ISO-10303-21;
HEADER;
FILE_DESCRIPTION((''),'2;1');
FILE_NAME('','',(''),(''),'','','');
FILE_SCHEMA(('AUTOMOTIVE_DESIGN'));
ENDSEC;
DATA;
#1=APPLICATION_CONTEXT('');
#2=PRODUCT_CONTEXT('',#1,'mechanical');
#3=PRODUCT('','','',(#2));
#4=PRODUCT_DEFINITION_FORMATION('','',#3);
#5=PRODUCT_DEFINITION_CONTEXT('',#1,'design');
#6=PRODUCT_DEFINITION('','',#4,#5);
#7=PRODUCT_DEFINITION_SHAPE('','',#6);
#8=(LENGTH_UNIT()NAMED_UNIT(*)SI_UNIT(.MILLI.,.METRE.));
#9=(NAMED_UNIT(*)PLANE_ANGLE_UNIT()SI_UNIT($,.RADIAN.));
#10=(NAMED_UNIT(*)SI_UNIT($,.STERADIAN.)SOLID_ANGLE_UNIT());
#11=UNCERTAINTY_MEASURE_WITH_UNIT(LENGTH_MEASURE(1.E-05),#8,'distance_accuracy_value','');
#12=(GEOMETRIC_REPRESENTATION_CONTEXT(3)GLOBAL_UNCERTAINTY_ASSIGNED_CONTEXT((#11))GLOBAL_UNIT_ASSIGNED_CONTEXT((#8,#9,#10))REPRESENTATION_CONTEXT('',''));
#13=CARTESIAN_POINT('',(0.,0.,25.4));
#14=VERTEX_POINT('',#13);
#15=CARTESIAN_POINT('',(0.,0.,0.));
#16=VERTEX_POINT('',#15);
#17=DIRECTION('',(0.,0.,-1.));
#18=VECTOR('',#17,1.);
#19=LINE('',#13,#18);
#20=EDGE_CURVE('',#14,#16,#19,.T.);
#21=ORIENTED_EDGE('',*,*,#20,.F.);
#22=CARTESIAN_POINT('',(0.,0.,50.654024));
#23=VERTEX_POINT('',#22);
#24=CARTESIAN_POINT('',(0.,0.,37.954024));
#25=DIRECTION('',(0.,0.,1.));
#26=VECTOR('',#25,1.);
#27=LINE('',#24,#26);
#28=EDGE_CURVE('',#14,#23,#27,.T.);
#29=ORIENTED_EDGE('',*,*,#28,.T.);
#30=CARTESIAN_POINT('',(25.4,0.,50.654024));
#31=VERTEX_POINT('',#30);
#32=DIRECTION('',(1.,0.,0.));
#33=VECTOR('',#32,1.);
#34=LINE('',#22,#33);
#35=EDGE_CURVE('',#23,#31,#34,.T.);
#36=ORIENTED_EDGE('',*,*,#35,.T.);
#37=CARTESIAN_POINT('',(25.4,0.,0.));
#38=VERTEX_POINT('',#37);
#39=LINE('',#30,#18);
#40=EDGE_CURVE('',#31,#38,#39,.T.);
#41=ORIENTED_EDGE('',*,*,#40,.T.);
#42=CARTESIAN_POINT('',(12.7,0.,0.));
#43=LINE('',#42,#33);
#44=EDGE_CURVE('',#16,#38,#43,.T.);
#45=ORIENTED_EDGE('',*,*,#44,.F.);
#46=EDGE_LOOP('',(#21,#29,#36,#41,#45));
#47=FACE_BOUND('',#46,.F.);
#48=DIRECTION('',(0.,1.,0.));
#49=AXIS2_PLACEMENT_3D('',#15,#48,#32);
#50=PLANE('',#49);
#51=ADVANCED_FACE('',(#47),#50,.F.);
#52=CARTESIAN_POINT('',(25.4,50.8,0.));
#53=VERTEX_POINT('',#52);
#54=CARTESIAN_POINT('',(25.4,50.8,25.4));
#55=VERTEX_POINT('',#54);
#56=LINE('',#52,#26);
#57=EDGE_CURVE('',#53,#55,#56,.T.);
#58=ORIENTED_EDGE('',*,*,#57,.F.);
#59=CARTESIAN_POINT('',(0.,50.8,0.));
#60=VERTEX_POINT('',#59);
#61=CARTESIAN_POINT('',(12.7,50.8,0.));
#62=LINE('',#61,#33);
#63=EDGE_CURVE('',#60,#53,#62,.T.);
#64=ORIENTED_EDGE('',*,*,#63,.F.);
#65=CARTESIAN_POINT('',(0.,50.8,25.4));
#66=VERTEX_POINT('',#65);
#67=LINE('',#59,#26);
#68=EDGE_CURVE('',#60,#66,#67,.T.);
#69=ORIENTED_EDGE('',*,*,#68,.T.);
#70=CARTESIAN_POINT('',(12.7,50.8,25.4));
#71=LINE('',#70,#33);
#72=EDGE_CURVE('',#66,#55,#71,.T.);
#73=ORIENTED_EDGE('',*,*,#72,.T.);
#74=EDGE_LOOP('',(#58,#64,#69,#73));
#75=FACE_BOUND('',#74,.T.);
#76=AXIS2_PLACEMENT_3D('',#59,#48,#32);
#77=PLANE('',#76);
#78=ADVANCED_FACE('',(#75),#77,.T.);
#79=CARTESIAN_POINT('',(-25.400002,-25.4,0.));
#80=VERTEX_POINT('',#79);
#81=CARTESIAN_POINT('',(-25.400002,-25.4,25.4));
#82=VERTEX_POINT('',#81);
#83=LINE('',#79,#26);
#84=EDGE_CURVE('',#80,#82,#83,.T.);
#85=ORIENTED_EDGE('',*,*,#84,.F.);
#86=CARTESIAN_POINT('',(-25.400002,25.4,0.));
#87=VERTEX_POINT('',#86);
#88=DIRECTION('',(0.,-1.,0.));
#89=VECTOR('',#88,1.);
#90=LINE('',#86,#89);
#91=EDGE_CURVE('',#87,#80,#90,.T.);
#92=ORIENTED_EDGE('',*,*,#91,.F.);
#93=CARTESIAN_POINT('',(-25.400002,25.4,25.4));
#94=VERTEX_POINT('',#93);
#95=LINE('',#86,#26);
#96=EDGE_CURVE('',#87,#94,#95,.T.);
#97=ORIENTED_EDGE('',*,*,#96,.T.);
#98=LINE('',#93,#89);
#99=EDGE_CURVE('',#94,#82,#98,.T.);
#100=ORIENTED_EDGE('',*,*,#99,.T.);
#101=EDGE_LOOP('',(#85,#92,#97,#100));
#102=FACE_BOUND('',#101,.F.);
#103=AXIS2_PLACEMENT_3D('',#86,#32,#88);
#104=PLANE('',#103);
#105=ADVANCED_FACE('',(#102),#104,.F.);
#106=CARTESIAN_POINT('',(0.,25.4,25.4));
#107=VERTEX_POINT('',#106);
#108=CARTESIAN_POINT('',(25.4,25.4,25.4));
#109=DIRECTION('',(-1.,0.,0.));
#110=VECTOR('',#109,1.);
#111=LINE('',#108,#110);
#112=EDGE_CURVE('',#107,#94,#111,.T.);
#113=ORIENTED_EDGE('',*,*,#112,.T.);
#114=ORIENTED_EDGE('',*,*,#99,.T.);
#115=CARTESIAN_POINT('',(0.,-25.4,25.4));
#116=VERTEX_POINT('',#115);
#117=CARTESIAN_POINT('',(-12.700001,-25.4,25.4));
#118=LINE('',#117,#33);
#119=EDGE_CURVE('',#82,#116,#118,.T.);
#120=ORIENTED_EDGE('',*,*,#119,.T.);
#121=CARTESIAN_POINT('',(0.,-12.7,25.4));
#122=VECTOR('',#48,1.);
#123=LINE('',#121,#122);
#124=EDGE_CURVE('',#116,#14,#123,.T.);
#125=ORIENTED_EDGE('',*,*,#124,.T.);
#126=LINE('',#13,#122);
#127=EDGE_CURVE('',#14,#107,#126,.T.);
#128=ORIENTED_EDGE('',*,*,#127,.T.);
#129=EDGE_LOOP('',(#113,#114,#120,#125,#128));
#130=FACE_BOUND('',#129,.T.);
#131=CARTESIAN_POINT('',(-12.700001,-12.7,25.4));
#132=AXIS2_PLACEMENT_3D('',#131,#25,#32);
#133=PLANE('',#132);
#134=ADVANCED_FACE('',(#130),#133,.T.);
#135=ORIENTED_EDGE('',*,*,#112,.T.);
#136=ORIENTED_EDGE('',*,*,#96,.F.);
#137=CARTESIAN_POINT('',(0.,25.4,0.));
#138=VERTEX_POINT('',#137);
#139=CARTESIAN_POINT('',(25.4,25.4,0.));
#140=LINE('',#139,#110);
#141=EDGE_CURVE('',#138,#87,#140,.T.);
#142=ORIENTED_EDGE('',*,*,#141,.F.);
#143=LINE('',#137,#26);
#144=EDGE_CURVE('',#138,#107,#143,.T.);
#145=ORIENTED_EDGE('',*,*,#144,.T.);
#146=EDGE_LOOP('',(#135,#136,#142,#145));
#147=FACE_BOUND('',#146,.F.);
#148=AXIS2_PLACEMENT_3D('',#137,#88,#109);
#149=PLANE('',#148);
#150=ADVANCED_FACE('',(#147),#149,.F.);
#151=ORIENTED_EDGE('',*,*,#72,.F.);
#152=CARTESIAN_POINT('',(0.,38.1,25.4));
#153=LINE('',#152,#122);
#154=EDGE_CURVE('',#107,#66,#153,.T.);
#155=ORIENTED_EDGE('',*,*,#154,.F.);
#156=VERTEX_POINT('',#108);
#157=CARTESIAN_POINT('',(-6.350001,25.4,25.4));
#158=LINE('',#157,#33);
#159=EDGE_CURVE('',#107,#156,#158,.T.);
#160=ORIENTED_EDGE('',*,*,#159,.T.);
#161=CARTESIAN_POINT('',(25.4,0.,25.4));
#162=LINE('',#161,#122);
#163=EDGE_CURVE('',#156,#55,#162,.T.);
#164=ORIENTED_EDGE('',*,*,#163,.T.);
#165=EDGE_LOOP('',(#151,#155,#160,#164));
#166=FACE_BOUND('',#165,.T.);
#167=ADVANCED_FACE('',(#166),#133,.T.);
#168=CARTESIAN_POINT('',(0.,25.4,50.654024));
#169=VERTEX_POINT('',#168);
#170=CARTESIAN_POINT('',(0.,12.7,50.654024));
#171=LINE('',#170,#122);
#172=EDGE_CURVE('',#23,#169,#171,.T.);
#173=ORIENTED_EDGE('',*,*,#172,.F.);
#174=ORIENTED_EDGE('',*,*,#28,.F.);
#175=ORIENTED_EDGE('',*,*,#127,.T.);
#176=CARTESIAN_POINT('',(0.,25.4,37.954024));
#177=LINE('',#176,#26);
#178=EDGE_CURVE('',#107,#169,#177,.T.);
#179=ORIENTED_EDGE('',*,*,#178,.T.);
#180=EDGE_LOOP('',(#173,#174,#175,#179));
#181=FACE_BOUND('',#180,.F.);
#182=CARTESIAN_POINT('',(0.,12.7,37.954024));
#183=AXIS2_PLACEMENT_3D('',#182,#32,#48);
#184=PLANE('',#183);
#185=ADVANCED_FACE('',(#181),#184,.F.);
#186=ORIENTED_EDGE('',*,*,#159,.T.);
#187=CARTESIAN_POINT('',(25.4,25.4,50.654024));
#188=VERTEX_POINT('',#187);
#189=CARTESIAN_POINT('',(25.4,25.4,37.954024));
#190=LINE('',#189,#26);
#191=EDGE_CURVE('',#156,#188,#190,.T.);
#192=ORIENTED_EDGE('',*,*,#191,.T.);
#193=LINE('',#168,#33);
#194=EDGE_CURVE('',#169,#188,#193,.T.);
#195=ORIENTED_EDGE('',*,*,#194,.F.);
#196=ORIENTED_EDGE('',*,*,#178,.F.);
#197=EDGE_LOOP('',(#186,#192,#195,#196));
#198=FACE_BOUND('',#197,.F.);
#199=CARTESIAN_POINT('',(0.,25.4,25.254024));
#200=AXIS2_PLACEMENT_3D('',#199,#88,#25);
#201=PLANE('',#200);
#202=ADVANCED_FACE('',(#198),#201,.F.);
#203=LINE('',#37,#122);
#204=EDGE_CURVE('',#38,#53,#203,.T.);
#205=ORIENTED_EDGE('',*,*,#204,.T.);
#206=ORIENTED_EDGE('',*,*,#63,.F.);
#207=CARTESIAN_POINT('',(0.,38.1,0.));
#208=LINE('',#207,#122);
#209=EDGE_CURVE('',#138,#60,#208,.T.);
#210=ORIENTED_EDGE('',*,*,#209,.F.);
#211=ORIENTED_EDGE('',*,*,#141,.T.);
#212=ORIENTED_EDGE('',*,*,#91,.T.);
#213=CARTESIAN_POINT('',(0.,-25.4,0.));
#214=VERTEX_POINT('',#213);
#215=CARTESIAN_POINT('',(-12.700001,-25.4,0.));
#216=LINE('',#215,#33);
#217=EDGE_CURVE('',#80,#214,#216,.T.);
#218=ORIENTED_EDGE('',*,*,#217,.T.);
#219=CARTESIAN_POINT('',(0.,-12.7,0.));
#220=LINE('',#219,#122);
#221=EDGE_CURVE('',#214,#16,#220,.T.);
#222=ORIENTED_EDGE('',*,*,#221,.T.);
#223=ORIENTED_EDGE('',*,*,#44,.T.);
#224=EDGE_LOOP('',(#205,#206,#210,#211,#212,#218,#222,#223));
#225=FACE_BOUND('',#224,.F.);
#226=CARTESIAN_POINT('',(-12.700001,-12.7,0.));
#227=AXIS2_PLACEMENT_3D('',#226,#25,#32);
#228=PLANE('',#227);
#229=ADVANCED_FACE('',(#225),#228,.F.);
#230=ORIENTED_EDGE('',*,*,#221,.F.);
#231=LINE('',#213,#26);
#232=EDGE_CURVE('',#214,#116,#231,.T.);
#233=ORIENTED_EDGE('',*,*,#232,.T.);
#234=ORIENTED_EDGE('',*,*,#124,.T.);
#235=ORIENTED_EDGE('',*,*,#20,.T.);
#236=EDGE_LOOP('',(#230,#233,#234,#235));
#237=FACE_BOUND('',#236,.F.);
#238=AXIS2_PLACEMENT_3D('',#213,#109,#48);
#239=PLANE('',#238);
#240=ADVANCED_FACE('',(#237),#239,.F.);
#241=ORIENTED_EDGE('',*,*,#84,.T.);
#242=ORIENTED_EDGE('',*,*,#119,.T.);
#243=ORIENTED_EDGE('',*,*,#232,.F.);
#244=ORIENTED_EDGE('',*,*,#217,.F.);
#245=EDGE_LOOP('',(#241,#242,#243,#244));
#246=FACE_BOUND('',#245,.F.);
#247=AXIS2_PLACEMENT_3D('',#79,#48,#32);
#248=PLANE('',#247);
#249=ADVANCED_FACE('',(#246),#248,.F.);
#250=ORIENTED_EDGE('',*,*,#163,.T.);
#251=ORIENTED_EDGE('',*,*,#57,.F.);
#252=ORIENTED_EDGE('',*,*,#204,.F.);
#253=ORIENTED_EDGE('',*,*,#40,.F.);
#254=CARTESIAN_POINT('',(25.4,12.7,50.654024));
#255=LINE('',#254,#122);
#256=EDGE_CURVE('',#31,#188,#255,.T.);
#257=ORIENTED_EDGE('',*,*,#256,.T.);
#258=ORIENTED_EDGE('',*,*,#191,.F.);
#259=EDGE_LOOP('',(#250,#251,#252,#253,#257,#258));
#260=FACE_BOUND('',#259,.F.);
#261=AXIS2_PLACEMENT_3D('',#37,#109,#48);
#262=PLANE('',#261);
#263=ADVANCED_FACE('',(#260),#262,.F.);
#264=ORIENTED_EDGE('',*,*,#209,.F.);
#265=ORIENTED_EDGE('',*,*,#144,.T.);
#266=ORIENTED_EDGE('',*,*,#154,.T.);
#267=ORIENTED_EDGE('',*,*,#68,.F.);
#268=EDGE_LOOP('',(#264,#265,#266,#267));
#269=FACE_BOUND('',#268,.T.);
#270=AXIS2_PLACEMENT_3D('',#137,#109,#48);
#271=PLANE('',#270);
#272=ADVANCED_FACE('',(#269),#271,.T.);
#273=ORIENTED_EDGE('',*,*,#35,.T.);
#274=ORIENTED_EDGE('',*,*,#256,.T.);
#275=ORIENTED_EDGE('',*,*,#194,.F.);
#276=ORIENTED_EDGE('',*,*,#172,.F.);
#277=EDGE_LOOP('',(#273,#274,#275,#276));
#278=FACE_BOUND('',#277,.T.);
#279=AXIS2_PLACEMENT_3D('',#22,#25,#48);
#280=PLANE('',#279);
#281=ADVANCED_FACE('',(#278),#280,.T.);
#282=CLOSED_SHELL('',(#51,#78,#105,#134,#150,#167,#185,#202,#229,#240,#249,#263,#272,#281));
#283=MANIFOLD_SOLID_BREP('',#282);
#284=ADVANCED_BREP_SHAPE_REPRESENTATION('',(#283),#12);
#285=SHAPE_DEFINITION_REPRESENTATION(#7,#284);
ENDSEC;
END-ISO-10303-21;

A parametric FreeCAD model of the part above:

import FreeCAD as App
import Part
import Sketcher
from FreeCAD import Vector
Q = App.Units.Quantity


def add_polygon(sketch, points):
    """Adds a closed chain of lines whose ends are joined by coincident constraints."""
    first, n = sketch.GeometryCount, len(points)
    for a, b in zip(points, points[1:] + points[:1]):
        sketch.addGeometry(Part.LineSegment(App.Vector(*a, 0), App.Vector(*b, 0)), False)
    for i in range(n):
        sketch.addConstraint(Sketcher.Constraint("Coincident", first + i, 2, first + (i + 1) % n, 1))

doc = App.newDocument("Part")
body = doc.addObject("PartDesign::Body", "Body")

sketch1 = body.newObject("Sketcher::SketchObject", "Sketch")
sketch1.AttachmentSupport = (doc.getObject("XY_Plane"), [""])
sketch1.MapMode = "FlatFace"
add_polygon(sketch1, [(-25, 25), (-25, -25), (0, -25), (0, 0), (25, 0), (25, 51), (0, 51), (0, 25)])
sketch1.addConstraint(Sketcher.Constraint("Vertical", 0))
sketch1.addConstraint(Sketcher.Constraint("Horizontal", 1))
sketch1.addConstraint(Sketcher.Constraint("Vertical", 2))
sketch1.addConstraint(Sketcher.Constraint("Horizontal", 3))
sketch1.addConstraint(Sketcher.Constraint("Vertical", 4))
sketch1.addConstraint(Sketcher.Constraint("Horizontal", 5))
sketch1.addConstraint(Sketcher.Constraint("Vertical", 6))
sketch1.addConstraint(Sketcher.Constraint("Horizontal", 7))
sketch1.addConstraint(Sketcher.Constraint("Coincident", 2, 2, -1, 1))
sketch1.addConstraint(Sketcher.Constraint("Symmetric", 1, 2, 6, 2, -1, 1))
sketch1.addConstraint(Sketcher.Constraint("Equal", 5, 2))
sketch1.addConstraint(Sketcher.Constraint("Equal", 0, 4))
sketch1.addConstraint(Sketcher.Constraint("DistanceX", 1, 1, 1, 2, Q("1.0000001 in")))
sketch1.addConstraint(Sketcher.Constraint("DistanceX", 3, 1, 3, 2, Q("1 in")))
pad1 = body.newObject("PartDesign::Pad", "Pad")
pad1.Profile = sketch1
pad1.Length = Q("1 in")

sketch2 = body.newObject("Sketcher::SketchObject", "Sketch001")
sketch2.AttachmentSupport = (doc.getObject("YZ_Plane"), [""])
sketch2.MapMode = "FlatFace"
add_polygon(sketch2, [(0, 51), (0, 25), (25, 25), (25, 51)])
sketch2.addConstraint(Sketcher.Constraint("Vertical", 0))
sketch2.addConstraint(Sketcher.Constraint("Horizontal", 1))
sketch2.addConstraint(Sketcher.Constraint("Vertical", 2))
sketch2.addConstraint(Sketcher.Constraint("Horizontal", 3))
sketch2.addConstraint(Sketcher.Constraint("PointOnObject", 0, 2, -2))
sketch2.addConstraint(Sketcher.Constraint("Equal", 3, 0))
sketch2.addConstraint(Sketcher.Constraint("DistanceX", 1, 1, 1, 2, Q("1 in")))
sketch2.addConstraint(Sketcher.Constraint("DistanceY", -1, 1, 0, 2, 25.254024))
pad2 = body.newObject("PartDesign::Pad", "Pad001")
pad2.Profile = sketch2
pad2.Length = Q("1 in")

doc.recompute()
